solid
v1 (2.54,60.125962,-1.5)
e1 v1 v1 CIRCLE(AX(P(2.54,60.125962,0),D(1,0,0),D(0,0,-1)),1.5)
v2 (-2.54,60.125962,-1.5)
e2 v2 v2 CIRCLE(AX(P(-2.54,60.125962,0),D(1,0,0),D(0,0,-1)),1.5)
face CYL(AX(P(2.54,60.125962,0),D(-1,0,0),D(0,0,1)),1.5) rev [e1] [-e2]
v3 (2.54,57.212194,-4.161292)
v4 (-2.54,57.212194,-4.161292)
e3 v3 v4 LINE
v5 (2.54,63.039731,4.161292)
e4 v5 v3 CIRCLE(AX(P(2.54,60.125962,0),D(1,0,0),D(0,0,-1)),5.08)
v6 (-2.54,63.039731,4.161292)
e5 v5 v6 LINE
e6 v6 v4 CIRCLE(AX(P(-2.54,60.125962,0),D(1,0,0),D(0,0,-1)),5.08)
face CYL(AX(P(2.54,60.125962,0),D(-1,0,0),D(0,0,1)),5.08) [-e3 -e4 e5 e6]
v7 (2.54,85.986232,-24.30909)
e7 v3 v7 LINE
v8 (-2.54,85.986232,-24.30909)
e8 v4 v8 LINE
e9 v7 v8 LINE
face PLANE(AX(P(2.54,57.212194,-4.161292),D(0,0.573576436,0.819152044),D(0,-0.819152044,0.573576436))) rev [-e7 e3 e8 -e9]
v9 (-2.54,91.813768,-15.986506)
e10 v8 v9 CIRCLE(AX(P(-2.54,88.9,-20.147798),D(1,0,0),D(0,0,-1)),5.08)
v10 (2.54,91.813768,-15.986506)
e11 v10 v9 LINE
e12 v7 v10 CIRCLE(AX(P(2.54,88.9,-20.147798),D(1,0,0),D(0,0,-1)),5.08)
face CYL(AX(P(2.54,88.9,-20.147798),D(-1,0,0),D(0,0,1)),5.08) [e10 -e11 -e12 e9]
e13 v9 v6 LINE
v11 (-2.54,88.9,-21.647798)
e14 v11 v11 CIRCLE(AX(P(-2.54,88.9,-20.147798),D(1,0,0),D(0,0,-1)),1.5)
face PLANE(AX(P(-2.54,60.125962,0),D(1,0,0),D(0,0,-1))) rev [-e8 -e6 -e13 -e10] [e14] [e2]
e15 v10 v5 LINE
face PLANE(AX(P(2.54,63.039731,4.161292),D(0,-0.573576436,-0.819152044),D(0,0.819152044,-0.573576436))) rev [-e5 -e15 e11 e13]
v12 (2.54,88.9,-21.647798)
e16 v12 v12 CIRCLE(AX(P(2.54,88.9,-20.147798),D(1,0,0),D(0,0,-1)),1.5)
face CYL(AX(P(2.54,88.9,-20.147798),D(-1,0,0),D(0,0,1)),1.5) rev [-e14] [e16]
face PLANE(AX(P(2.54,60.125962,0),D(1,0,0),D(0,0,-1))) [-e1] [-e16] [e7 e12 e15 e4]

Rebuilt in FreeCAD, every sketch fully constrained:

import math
import FreeCAD as App
import Part
import Sketcher
Q = App.Units.Quantity

doc = App.newDocument("Part")
params = doc.addObject("Spreadsheet::Sheet", "Params")
for row, (alias, value) in enumerate([
    ("sketch1_radius", "0.2 in"),
    ("pad1_length", "0.2 in"),
], start=1):
    params.set(f"A{row}", alias)
    params.set(f"B{row}", "=" + value)
    params.setAlias(f"B{row}", alias)

body = doc.addObject("PartDesign::Body", "Body")

sketch1 = doc.addObject("Sketcher::SketchObject", "Sketch")
body.addObject(sketch1)
sketch1.AttachmentSupport = (doc.YZ_Plane, [""])
sketch1.MapMode = "FlatFace"
sketch1.addGeometry([
    Part.LineSegment(App.Vector(91.8, -16, 0), App.Vector(63, 4.2, 0)),
    Part.ArcOfCircle(Part.Circle(App.Vector(60.1, 0, 0), App.Vector(0, 0, 1), 5.1), math.radians(55), math.radians(235)),
    Part.LineSegment(App.Vector(57.2, -4.2, 0), App.Vector(86, -24.3, 0)),
    Part.ArcOfCircle(Part.Circle(App.Vector(88.9, -20.1, 0), App.Vector(0, 0, 1), 5.1), math.radians(-125), math.radians(55)),
    Part.Circle(App.Vector(60.1, 0, 0), App.Vector(0, 0, 1), 1.5),
    Part.Circle(App.Vector(88.9, -20.1, 0), App.Vector(0, 0, 1), 1.5),
], False)
sketch1.addConstraint([
    Sketcher.Constraint("Tangent", 0, 2, 1, 1),
    Sketcher.Constraint("Tangent", 1, 2, 2, 1),
    Sketcher.Constraint("Tangent", 2, 2, 3, 1),
    Sketcher.Constraint("Tangent", 3, 2, 0, 1),
    Sketcher.Constraint("Coincident", 4, 3, 1, 3),
    Sketcher.Constraint("Coincident", 5, 3, 3, 3),
    Sketcher.Constraint("Equal", 1, 3),
    Sketcher.Constraint("Equal", 4, 5),
    Sketcher.Constraint("PointOnObject", 1, 3, -1),
    Sketcher.Constraint("Radius", 1, Q("0.2 in")),
    Sketcher.Constraint("Angle", 0, Q("145 deg")),
    Sketcher.Constraint("DistanceX", -1, 1, 3, 3, Q("3.5 in")),
    Sketcher.Constraint("Diameter", 4, 3.0),
    Sketcher.Constraint("DistanceY", 3, 3, -1, 1, 20.147798),
])
sketch1.setExpression("Constraints[9]", "Params.sketch1_radius")
pad1 = doc.addObject("PartDesign::Pad", "Pad")
body.addObject(pad1)
pad1.Profile = sketch1
pad1.setExpression("Length", "Params.pad1_length")
pad1.Midplane = True

doc.recompute()
